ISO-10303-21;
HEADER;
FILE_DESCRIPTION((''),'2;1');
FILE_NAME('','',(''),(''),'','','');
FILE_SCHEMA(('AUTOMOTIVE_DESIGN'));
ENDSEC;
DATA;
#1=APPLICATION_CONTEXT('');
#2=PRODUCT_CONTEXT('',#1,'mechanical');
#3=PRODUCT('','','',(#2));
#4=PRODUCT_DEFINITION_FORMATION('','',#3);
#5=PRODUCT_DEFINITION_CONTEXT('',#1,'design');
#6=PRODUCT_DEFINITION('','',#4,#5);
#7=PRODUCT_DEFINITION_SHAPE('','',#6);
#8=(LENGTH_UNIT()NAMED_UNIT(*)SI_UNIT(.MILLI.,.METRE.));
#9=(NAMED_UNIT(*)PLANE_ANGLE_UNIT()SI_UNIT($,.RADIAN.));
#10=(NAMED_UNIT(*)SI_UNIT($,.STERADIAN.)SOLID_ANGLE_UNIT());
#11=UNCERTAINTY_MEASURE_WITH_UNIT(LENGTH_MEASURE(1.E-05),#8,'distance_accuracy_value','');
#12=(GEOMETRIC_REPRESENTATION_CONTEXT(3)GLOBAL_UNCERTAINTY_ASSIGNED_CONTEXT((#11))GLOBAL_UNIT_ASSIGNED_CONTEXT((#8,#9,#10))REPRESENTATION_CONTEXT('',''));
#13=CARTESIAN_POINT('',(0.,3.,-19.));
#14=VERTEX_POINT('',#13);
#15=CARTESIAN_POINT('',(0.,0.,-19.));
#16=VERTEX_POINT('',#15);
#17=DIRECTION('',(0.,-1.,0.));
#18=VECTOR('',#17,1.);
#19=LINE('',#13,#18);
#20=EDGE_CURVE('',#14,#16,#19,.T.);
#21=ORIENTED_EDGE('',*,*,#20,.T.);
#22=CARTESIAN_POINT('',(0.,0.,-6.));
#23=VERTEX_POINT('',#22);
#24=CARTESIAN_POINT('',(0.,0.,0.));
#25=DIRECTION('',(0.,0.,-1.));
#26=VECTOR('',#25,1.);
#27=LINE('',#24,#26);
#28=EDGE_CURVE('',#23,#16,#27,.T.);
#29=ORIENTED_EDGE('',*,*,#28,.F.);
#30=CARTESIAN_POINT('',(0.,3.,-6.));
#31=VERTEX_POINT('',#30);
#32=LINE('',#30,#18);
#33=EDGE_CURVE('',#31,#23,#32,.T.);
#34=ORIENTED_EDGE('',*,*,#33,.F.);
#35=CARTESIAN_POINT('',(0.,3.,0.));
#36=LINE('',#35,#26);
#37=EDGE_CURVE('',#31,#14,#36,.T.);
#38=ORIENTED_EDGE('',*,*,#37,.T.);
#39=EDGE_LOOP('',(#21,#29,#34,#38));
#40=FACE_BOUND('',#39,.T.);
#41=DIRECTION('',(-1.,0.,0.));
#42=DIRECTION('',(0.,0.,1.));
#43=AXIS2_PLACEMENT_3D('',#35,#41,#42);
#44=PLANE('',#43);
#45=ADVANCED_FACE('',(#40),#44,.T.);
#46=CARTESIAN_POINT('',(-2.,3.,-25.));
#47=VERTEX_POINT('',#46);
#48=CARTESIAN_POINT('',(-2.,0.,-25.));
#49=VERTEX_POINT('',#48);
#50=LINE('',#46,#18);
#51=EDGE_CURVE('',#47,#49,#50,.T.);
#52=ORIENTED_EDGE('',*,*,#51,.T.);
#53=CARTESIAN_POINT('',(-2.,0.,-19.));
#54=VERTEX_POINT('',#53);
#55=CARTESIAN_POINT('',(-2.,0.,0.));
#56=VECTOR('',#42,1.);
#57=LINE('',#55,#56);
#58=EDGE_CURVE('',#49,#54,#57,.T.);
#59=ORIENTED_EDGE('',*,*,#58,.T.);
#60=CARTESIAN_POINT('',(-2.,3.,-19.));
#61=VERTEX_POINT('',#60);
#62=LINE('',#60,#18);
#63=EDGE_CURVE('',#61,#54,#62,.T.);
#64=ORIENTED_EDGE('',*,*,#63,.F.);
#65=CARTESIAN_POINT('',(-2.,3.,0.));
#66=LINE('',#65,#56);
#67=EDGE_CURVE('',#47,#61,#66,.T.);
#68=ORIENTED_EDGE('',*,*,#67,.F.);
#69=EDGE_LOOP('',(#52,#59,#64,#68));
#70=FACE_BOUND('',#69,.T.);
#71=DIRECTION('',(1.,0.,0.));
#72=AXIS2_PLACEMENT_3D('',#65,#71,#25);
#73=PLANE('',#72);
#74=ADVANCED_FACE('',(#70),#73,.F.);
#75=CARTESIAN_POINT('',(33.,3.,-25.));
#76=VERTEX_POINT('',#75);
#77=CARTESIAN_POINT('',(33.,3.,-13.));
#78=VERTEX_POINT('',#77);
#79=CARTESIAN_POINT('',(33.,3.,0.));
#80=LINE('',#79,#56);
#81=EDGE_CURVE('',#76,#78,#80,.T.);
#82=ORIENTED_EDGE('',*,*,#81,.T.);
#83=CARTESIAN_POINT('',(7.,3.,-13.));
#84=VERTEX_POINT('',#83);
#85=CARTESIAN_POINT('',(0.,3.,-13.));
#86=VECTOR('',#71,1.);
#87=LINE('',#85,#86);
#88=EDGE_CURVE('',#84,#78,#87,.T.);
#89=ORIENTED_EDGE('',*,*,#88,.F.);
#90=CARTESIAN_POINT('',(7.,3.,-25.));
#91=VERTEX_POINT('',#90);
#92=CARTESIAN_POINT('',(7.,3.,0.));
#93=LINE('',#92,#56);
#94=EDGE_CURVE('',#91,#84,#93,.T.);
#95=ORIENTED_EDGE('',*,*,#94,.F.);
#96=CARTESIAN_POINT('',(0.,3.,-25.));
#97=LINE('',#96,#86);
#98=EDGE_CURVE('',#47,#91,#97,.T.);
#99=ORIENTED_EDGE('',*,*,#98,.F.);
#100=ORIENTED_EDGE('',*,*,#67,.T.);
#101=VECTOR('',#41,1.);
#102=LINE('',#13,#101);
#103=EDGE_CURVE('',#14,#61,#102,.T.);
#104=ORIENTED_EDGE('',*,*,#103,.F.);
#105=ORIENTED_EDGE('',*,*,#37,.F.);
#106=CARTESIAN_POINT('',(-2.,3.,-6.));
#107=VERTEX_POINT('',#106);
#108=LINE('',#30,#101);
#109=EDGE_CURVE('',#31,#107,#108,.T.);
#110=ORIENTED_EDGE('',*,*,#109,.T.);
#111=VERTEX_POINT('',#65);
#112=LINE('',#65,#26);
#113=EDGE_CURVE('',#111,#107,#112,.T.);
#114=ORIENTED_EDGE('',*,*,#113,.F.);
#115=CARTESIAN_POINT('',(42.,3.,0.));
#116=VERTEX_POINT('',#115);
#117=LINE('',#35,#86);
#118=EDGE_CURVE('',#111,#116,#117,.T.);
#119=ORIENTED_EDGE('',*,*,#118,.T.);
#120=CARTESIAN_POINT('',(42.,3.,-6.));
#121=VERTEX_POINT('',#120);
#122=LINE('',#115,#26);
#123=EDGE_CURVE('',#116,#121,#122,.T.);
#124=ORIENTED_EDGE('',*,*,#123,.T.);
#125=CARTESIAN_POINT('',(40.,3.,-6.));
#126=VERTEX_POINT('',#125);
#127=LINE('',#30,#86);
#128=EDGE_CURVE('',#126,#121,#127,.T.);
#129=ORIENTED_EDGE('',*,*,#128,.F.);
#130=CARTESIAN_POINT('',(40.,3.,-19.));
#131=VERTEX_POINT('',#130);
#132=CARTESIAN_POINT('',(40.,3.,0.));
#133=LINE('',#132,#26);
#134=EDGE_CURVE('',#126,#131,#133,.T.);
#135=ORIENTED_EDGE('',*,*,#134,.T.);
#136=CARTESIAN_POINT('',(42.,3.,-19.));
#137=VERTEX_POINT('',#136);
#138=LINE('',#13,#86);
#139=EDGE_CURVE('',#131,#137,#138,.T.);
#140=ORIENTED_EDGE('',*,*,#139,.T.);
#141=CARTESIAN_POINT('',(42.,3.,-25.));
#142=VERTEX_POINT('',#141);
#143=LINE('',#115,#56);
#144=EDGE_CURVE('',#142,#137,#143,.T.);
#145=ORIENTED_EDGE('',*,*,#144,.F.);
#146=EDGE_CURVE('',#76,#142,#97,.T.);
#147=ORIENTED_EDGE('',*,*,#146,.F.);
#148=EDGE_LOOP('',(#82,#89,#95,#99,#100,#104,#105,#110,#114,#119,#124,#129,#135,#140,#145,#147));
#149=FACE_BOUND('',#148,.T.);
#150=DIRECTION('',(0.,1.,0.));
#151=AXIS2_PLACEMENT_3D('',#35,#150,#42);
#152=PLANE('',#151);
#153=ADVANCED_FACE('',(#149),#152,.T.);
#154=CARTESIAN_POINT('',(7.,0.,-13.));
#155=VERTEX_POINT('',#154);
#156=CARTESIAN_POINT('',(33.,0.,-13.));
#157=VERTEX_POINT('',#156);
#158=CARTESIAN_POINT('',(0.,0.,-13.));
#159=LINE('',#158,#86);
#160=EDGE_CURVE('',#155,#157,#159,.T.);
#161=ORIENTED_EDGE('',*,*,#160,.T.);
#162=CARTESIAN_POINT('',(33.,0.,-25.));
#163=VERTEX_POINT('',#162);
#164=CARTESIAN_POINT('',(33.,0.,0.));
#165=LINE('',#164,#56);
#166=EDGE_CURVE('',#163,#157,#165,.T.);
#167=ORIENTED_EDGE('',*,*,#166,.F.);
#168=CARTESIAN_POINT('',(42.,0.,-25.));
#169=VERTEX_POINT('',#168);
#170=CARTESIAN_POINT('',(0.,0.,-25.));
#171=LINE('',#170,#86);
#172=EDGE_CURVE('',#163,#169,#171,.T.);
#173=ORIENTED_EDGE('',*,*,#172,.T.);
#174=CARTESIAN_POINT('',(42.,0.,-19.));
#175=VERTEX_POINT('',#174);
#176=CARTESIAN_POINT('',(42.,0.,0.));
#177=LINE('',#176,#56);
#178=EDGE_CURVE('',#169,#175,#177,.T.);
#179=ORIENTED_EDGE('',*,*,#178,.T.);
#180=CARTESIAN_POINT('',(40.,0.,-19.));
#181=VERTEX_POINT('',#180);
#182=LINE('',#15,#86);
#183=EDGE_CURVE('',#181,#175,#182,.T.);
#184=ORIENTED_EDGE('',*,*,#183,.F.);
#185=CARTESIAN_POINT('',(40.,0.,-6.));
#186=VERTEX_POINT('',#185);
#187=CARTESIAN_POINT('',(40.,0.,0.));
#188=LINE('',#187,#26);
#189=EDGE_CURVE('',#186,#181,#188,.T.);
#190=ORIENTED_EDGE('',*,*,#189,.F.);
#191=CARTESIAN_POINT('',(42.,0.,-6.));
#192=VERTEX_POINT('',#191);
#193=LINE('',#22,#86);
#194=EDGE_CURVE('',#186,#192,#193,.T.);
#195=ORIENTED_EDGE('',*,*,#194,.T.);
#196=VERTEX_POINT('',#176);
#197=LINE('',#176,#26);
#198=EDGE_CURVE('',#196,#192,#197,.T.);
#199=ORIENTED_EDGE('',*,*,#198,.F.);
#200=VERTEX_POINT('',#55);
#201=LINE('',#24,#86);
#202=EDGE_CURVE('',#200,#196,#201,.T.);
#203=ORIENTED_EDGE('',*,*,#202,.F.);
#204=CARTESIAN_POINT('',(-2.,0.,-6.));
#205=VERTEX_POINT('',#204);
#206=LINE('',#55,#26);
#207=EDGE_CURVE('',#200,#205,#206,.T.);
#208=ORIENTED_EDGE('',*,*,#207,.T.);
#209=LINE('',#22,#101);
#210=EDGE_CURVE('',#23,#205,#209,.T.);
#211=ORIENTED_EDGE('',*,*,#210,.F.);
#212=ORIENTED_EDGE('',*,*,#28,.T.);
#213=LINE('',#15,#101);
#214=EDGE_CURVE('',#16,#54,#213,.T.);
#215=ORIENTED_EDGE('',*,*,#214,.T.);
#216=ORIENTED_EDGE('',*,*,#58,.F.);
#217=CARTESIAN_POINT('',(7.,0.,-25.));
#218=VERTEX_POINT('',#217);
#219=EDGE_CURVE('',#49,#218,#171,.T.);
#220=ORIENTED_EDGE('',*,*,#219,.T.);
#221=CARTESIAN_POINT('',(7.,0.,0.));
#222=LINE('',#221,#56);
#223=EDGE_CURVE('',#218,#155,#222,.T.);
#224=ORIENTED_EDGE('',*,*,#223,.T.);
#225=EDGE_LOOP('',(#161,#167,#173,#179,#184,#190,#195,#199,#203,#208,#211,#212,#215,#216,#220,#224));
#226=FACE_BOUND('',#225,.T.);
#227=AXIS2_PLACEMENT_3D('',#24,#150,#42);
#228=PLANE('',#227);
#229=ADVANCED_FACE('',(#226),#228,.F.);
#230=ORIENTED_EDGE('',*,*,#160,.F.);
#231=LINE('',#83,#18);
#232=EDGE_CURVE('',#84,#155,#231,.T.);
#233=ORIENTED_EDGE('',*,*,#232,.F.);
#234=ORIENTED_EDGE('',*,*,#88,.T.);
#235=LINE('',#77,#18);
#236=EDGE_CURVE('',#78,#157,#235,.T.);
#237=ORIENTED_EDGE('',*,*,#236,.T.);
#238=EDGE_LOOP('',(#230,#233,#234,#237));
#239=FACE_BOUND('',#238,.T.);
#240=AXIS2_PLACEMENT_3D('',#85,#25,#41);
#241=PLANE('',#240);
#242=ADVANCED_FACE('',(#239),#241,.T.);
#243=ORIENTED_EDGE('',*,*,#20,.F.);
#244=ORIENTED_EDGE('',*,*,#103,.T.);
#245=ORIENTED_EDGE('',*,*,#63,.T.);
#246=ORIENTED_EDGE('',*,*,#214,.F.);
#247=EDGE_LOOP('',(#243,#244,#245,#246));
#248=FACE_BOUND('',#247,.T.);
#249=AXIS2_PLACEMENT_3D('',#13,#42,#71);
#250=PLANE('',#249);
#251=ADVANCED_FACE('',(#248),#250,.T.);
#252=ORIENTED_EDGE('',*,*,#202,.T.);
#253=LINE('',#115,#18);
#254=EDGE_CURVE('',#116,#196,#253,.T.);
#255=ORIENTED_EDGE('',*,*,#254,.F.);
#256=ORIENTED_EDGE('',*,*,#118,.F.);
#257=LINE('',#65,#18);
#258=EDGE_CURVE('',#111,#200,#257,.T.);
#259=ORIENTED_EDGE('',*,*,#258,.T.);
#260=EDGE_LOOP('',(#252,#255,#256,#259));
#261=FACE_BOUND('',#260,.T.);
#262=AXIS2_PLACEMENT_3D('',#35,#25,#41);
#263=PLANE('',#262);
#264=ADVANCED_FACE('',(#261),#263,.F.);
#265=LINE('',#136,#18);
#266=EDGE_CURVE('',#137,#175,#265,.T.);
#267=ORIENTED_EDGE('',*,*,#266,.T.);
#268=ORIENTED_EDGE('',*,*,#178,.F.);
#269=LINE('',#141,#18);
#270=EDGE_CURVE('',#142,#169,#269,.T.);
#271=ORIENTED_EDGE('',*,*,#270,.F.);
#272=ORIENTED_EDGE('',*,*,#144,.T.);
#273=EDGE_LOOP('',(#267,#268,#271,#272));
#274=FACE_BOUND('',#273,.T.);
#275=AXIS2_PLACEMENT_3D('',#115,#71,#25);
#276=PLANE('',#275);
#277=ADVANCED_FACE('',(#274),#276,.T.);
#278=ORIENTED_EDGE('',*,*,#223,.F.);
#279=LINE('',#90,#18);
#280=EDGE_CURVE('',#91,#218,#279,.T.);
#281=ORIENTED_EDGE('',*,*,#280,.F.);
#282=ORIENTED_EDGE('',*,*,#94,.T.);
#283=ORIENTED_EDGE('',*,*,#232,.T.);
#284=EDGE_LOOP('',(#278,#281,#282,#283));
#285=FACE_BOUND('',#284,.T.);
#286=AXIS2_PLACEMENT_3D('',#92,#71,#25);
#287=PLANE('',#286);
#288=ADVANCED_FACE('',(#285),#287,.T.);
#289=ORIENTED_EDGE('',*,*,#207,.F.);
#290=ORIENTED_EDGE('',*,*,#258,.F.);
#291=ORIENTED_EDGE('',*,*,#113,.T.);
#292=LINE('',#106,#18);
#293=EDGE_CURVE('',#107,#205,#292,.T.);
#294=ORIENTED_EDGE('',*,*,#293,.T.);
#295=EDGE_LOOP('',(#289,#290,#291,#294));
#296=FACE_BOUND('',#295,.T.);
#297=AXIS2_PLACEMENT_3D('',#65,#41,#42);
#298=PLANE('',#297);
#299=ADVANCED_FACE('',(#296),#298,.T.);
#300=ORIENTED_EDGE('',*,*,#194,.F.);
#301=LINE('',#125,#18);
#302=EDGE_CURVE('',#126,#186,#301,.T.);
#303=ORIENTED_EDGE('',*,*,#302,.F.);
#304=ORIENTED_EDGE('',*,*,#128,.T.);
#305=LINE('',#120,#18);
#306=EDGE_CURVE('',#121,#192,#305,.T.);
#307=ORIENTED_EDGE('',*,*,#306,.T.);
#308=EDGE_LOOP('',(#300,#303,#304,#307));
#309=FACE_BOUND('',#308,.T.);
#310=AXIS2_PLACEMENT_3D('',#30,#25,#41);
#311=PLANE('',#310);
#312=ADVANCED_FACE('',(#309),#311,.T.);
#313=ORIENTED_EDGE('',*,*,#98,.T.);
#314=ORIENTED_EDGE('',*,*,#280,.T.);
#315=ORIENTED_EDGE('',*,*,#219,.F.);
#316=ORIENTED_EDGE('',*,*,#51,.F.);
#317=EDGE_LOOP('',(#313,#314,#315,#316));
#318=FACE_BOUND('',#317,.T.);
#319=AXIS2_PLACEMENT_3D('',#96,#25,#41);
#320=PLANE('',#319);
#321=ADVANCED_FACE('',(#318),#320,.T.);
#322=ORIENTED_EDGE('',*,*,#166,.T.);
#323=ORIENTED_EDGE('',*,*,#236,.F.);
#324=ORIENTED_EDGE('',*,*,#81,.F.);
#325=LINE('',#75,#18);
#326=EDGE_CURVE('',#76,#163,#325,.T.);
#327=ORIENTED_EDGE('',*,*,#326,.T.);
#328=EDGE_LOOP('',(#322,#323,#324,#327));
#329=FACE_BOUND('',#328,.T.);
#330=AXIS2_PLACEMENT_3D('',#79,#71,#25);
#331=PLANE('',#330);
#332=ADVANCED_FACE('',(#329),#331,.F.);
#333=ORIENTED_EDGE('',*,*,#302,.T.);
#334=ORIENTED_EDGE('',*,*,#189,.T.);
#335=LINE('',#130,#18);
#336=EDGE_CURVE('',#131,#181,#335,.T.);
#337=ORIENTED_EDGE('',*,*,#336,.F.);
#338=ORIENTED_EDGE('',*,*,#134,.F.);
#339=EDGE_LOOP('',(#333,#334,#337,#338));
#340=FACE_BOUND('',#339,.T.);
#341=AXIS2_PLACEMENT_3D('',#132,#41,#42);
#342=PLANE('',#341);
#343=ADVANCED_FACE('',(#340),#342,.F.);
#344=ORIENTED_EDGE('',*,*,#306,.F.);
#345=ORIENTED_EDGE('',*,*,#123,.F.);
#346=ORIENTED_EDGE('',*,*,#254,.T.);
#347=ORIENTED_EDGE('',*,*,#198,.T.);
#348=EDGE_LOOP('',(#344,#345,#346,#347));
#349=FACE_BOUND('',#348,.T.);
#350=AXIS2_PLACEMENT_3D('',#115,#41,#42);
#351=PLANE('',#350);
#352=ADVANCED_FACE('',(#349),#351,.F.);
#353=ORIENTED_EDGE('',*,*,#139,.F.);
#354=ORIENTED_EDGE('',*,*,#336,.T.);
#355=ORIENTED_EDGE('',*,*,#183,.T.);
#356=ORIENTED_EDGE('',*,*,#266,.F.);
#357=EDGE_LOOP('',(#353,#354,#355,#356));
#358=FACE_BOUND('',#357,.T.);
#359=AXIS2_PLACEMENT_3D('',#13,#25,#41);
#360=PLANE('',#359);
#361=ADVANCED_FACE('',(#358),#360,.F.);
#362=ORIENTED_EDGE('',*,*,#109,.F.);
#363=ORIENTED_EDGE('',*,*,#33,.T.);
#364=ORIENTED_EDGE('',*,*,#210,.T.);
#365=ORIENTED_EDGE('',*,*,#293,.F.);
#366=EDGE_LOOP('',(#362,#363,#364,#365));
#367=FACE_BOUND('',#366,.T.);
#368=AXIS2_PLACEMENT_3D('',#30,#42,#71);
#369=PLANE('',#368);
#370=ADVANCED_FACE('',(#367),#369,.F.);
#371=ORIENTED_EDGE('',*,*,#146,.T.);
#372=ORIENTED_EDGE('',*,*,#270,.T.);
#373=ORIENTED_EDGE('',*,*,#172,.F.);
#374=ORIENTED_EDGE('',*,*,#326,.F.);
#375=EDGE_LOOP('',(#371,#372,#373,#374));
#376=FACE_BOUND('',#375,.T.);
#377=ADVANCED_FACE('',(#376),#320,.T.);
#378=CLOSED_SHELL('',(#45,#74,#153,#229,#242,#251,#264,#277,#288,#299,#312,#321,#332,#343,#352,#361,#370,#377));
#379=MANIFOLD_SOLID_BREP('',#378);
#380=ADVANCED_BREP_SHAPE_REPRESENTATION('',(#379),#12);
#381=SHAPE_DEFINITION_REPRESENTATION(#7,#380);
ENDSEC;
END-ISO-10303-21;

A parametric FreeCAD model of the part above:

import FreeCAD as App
import Part
import Sketcher
Q = App.Units.Quantity

doc = App.newDocument("Part")
body = doc.addObject("PartDesign::Body", "Body")

# Sketch on XZ plane
sketch1 = doc.addObject("Sketcher::SketchObject", "Sketch")
body.addObject(sketch1)
sketch1.AttachmentSupport = (doc.XZ_Plane, [""])
sketch1.MapMode = "FlatFace"
sketch1.addGeometry([
    Part.LineSegment(App.Vector(40, -6, 0), App.Vector(40, -19, 0)),  # 0
    Part.LineSegment(App.Vector(40, -19, 0), App.Vector(42, -19, 0)),  # 1
    Part.LineSegment(App.Vector(42, -19, 0), App.Vector(42, -25, 0)),  # 2
    Part.LineSegment(App.Vector(42, -25, 0), App.Vector(33, -25, 0)),  # 3
    Part.LineSegment(App.Vector(33, -25, 0), App.Vector(33, -13, 0)),  # 4
    Part.LineSegment(App.Vector(33, -13, 0), App.Vector(7, -13, 0)),  # 5
    Part.LineSegment(App.Vector(7, -13, 0), App.Vector(7, -25, 0)),  # 6
    Part.LineSegment(App.Vector(7, -25, 0), App.Vector(-2, -25, 0)),  # 7
    Part.LineSegment(App.Vector(-2, -25, 0), App.Vector(-2, -19, 0)),  # 8
    Part.LineSegment(App.Vector(-2, -19, 0), App.Vector(0, -19, 0)),  # 9
    Part.LineSegment(App.Vector(0, -19, 0), App.Vector(0, -6, 0)),  # 10
    Part.LineSegment(App.Vector(0, -6, 0), App.Vector(-2, -6, 0)),  # 11
    Part.LineSegment(App.Vector(-2, -6, 0), App.Vector(-2, 0, 0)),  # 12
    Part.LineSegment(App.Vector(-2, 0, 0), App.Vector(42, 0, 0)),  # 13
    Part.LineSegment(App.Vector(42, 0, 0), App.Vector(42, -6, 0)),  # 14
    Part.LineSegment(App.Vector(42, -6, 0), App.Vector(40, -6, 0)),  # 15
], False)
sketch1.addConstraint([
    Sketcher.Constraint("Coincident", 0, 2, 1, 1),
    Sketcher.Constraint("Coincident", 1, 2, 2, 1),
    Sketcher.Constraint("Coincident", 2, 2, 3, 1),
    Sketcher.Constraint("Coincident", 3, 2, 4, 1),
    Sketcher.Constraint("Coincident", 4, 2, 5, 1),
    Sketcher.Constraint("Coincident", 5, 2, 6, 1),
    Sketcher.Constraint("Coincident", 6, 2, 7, 1),
    Sketcher.Constraint("Coincident", 7, 2, 8, 1),
    Sketcher.Constraint("Coincident", 8, 2, 9, 1),
    Sketcher.Constraint("Coincident", 9, 2, 10, 1),
    Sketcher.Constraint("Coincident", 10, 2, 11, 1),
    Sketcher.Constraint("Coincident", 11, 2, 12, 1),
    Sketcher.Constraint("Coincident", 12, 2, 13, 1),
    Sketcher.Constraint("Coincident", 13, 2, 14, 1),
    Sketcher.Constraint("Coincident", 14, 2, 15, 1),
    Sketcher.Constraint("Coincident", 15, 2, 0, 1),
    Sketcher.Constraint("Vertical", 0),
    Sketcher.Constraint("Horizontal", 1),
    Sketcher.Constraint("Vertical", 2),
    Sketcher.Constraint("Horizontal", 3),
    Sketcher.Constraint("Vertical", 4),
    Sketcher.Constraint("Horizontal", 5),
    Sketcher.Constraint("Vertical", 6),
    Sketcher.Constraint("Horizontal", 7),
    Sketcher.Constraint("Vertical", 8),
    Sketcher.Constraint("Horizontal", 9),
    Sketcher.Constraint("Vertical", 10),
    Sketcher.Constraint("Horizontal", 11),
    Sketcher.Constraint("Vertical", 12),
    Sketcher.Constraint("Horizontal", 13),
    Sketcher.Constraint("Vertical", 14),
    Sketcher.Constraint("Horizontal", 15),
    Sketcher.Constraint("PointOnObject", 9, 2, -2),
    Sketcher.Constraint("PointOnObject", 12, 2, -1),
    Sketcher.Constraint("Horizontal", 3, 2, 6, 2),
    Sketcher.Constraint("Horizontal", 1, 2, 8, 2),
    Sketcher.Constraint("Horizontal", 11, 2, 14, 2),
    Sketcher.Constraint("Vertical", 8, 2, 11, 2),
    Sketcher.Constraint("Vertical", 2, 2, 13, 2),
    Sketcher.Constraint("Equal", 3, 7),
    Sketcher.Constraint("Equal", 1, 9),
    Sketcher.Constraint("Equal", 8, 12),
    Sketcher.Constraint("DistanceX", 1, 1, 1, 2, Q("2 mm")),
    Sketcher.Constraint("DistanceX", 3, 2, 3, 1, Q("9 mm")),
    Sketcher.Constraint("DistanceX", 5, 2, 5, 1, Q("26 mm")),
    Sketcher.Constraint("DistanceY", 0, 2, 0, 1, Q("13 mm")),
    Sketcher.Constraint("DistanceY", 2, 2, 2, 1, Q("6 mm")),
    Sketcher.Constraint("DistanceY", 4, 1, 4, 2, Q("12 mm")),
])
pad1 = doc.addObject("PartDesign::Pad", "Pad")
body.addObject(pad1)
pad1.Profile = sketch1
pad1.Length = 3
pad1.Reversed = True

doc.recompute()
